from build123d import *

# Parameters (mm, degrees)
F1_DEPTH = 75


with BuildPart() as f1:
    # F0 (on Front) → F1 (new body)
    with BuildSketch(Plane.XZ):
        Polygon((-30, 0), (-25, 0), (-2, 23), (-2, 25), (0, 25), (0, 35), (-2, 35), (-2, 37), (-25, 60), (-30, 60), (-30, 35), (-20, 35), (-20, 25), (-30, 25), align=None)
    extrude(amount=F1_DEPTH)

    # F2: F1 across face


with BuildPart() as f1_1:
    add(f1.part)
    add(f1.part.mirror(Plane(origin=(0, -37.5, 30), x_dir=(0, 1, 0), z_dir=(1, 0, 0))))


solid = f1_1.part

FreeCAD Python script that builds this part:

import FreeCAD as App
import Part
import Sketcher
Q = App.Units.Quantity


def add_polygon(sketch, points):
    """Adds a closed chain of lines whose ends are joined by coincident constraints."""
    first, n = sketch.GeometryCount, len(points)
    for a, b in zip(points, points[1:] + points[:1]):
        sketch.addGeometry(Part.LineSegment(App.Vector(*a, 0), App.Vector(*b, 0)), False)
    for i in range(n):
        sketch.addConstraint(Sketcher.Constraint("Coincident", first + i, 2, first + (i + 1) % n, 1))

doc = App.newDocument("Part")
body = doc.addObject("PartDesign::Body", "Body")

# Sketch on XZ plane
sketch1 = doc.addObject("Sketcher::SketchObject", "Sketch")
body.addObject(sketch1)
sketch1.AttachmentSupport = (doc.XZ_Plane, [""])
sketch1.MapMode = "FlatFace"
add_polygon(sketch1, [(-30, 0), (-25, 0), (-2, 23), (-2, 25), (0, 25), (0, 35), (-2, 35), (-2, 37), (-25, 60), (-30, 60), (-30, 35), (-20, 35), (-20, 25), (-30, 25)])  # lines 0-13
sketch1.addConstraint([
    Sketcher.Constraint("Horizontal", 0),
    Sketcher.Constraint("Vertical", 2),
    Sketcher.Constraint("Horizontal", 3),
    Sketcher.Constraint("Vertical", 4),
    Sketcher.Constraint("Horizontal", 5),
    Sketcher.Constraint("Vertical", 6),
    Sketcher.Constraint("Horizontal", 8),
    Sketcher.Constraint("Vertical", 9),
    Sketcher.Constraint("Horizontal", 10),
    Sketcher.Constraint("Vertical", 11),
    Sketcher.Constraint("Horizontal", 12),
    Sketcher.Constraint("Vertical", 13),
    Sketcher.Constraint("PointOnObject", 0, 2, -1),
    Sketcher.Constraint("PointOnObject", 3, 2, -2),
    Sketcher.Constraint("Perpendicular", 1, 7),
    Sketcher.Constraint("Horizontal", 5, 2, 9, 2),
    Sketcher.Constraint("Horizontal", 3, 2, 11, 2),
    Sketcher.Constraint("Vertical", 2, 2, 5, 2),
    Sketcher.Constraint("Vertical", 0, 2, 7, 2),
    Sketcher.Constraint("Vertical", 9, 2, 12, 2),
    Sketcher.Constraint("Equal", 5, 2),
    Sketcher.Constraint("Equal", 12, 4),
    Sketcher.Constraint("Equal", 2, 6),
    Sketcher.Constraint("Equal", 9, 13),
    Sketcher.Constraint("DistanceX", 0, 1, 0, 2, Q("5 mm")),
    Sketcher.Constraint("DistanceX", 3, 1, 3, 2, Q("2 mm")),
    Sketcher.Constraint("DistanceX", 10, 1, 10, 2, Q("10 mm")),
    Sketcher.Constraint("DistanceY", 9, 2, 9, 1, Q("25 mm")),
])
pad1 = doc.addObject("PartDesign::Pad", "Pad")
body.addObject(pad1)
pad1.Profile = sketch1
pad1.Length = 75
body2 = doc.addObject("PartDesign::Body", "Body001")
doc.recompute()

body2.BaseFeature = body
doc.recompute()

mirroring = doc.addObject("Part::Mirroring", "Mirroring")
mirroring.Source = body
mirroring.Base = App.Vector(0, -37.5, 30)
mirroring.Normal = App.Vector(1, 0, 0)
body3 = doc.addObject("PartDesign::Body", "Body002")
body3.BaseFeature = mirroring
boolean = doc.addObject("PartDesign::Boolean", "Boolean")
body2.addObject(boolean)
boolean.Type = "Fuse"
boolean.addObjects([body3])
doc.recompute()
mirroring.Visibility = False

doc.recompute()
